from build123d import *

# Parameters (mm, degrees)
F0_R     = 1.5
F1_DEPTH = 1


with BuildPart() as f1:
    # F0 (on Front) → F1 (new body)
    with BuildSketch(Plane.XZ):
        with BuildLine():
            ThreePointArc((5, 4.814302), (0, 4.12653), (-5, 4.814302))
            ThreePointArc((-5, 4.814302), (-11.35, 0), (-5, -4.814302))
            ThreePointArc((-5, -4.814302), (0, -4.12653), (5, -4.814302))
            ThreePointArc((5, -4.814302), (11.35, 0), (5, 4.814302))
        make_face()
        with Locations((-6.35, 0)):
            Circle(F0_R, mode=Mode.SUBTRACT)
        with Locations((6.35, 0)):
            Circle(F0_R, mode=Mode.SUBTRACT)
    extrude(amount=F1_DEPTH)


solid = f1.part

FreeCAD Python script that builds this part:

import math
import FreeCAD as App
import Part
import Sketcher

V = App.Vector

doc = App.newDocument("Part")
body = doc.addObject("PartDesign::Body", "Body")

# Sketch on XZ plane
sketch1 = body.newObject("Sketcher::SketchObject", "Sketch")
sketch1.AttachmentSupport = (doc.getObject("XZ_Plane"), [""])
sketch1.MapMode = "FlatFace"
sketch1.addGeometry(Part.ArcOfCircle(Part.Circle(V(0, 22.6, 0), V(0, 0, 1), 18.5), math.radians(-106), math.radians(-74)), False)
sketch1.addGeometry(Part.ArcOfCircle(Part.Circle(V(-6.3, 0, 0), V(0, 0, 1), 5), math.radians(74), math.radians(286)), False)
sketch1.addGeometry(Part.ArcOfCircle(Part.Circle(V(0, -22.6, 0), V(0, 0, 1), 18.5), math.radians(74), math.radians(106)), False)
sketch1.addGeometry(Part.ArcOfCircle(Part.Circle(V(6.3, 0, 0), V(0, 0, 1), 5), math.radians(-106), math.radians(106)), False)
sketch1.addGeometry(Part.Circle(V(-6.3, 0, 0), V(0, 0, 1), 1.5), False)
sketch1.addGeometry(Part.Circle(V(6.3, 0, 0), V(0, 0, 1), 1.5), False)
sketch1.addConstraint(Sketcher.Constraint("Tangent", 0, 1, 1, 1))
sketch1.addConstraint(Sketcher.Constraint("Tangent", 1, 2, 2, 2))
sketch1.addConstraint(Sketcher.Constraint("Tangent", 2, 1, 3, 1))
sketch1.addConstraint(Sketcher.Constraint("Tangent", 3, 2, 0, 2))
sketch1.addConstraint(Sketcher.Constraint("Coincident", 4, 3, 1, 3))
sketch1.addConstraint(Sketcher.Constraint("Coincident", 5, 3, 3, 3))
sketch1.addConstraint(Sketcher.Constraint("Equal", 0, 2))
sketch1.addConstraint(Sketcher.Constraint("Equal", 1, 3))
sketch1.addConstraint(Sketcher.Constraint("Equal", 4, 5))
sketch1.addConstraint(Sketcher.Constraint("Symmetric", 0, 3, 2, 3, -1, 1))
sketch1.addConstraint(Sketcher.Constraint("PointOnObject", 0, 3, -2))
sketch1.addConstraint(Sketcher.Constraint("Diameter", 4, 3.0))
sketch1.addConstraint(Sketcher.Constraint("Radius", 1, 5.0))
sketch1.addConstraint(Sketcher.Constraint("DistanceX", 0, 1, -1, 1, 5.0))
sketch1.addConstraint(Sketcher.Constraint("DistanceX", 1, 3, 3, 3, 12.699999))
pad1 = body.newObject("PartDesign::Pad", "Pad")
pad1.Profile = sketch1
pad1.Length = 1

doc.recompute()
